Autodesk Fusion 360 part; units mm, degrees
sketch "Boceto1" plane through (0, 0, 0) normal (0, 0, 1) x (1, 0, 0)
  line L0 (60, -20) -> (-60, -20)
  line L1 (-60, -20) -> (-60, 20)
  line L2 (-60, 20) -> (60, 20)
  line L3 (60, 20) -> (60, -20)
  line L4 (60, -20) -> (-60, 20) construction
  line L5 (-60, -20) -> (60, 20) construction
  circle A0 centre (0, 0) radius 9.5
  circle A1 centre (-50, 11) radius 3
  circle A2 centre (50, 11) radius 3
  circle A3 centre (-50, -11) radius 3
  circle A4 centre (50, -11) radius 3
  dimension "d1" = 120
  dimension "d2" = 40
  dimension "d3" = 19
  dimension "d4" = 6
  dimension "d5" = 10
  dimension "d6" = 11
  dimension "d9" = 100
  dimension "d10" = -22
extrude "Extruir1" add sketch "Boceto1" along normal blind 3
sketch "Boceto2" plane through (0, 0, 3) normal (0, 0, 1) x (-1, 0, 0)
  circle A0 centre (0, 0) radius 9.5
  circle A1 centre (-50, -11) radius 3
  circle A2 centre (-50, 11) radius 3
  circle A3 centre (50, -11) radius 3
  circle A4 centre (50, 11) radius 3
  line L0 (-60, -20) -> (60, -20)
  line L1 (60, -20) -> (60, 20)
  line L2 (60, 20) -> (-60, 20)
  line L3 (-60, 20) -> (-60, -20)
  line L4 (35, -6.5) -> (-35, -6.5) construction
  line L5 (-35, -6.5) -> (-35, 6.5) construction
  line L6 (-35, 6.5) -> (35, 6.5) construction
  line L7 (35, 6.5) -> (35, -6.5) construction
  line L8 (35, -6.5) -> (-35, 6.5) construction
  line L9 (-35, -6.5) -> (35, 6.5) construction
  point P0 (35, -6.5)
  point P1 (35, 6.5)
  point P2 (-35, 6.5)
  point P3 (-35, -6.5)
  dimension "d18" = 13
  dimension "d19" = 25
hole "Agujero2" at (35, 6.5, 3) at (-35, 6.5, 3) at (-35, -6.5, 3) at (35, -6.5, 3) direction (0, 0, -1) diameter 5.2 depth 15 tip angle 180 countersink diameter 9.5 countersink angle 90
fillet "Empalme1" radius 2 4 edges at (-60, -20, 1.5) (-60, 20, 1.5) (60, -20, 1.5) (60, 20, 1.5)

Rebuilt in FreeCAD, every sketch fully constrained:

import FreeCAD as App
import Part
import Sketcher

V = App.Vector
Q = App.Units.Quantity


def edges_at(feature, points):
    """Names of the edges that pass closest to the given points."""
    edges = feature.Shape.Edges
    near = lambda p: min(range(len(edges)), key=lambda i: edges[i].distToShape(Part.Vertex(*p))[0])
    return sorted({f"Edge{near(p) + 1}" for p in points})


def add_polygon(sketch, points):
    """Adds a closed chain of lines whose ends are joined by coincident constraints."""
    first, n = sketch.GeometryCount, len(points)
    for a, b in zip(points, points[1:] + points[:1]):
        sketch.addGeometry(Part.LineSegment(App.Vector(*a, 0), App.Vector(*b, 0)), False)
    for i in range(n):
        sketch.addConstraint(Sketcher.Constraint("Coincident", first + i, 2, first + (i + 1) % n, 1))

doc = App.newDocument("Part")
body = doc.addObject("PartDesign::Body", "Body")

# Sketch on XY plane
sketch1 = body.newObject("Sketcher::SketchObject", "Sketch")
sketch1.AttachmentSupport = (doc.getObject("XY_Plane"), [""])
sketch1.MapMode = "FlatFace"
add_polygon(sketch1, [(-60, -20), (60, -20), (60, 20), (-60, 20)])  # lines 0-3
sketch1.addGeometry(Part.Circle(V(-50, -11, 0), V(0, 0, 1), 3), False)  # 4
sketch1.addGeometry(Part.Circle(V(50, -11, 0), V(0, 0, 1), 3), False)  # 5
sketch1.addGeometry(Part.Circle(V(-50, 11, 0), V(0, 0, 1), 3), False)  # 6
sketch1.addGeometry(Part.Circle(V(0, 0, 0), V(0, 0, 1), 9.5), False)  # 7
sketch1.addGeometry(Part.Circle(V(50, 11, 0), V(0, 0, 1), 3), False)  # 8
sketch1.addConstraint(Sketcher.Constraint("Horizontal", 0))
sketch1.addConstraint(Sketcher.Constraint("Vertical", 1))
sketch1.addConstraint(Sketcher.Constraint("Horizontal", 2))
sketch1.addConstraint(Sketcher.Constraint("Vertical", 3))
sketch1.addConstraint(Sketcher.Constraint("Coincident", 7, 3, -1, 1))
sketch1.addConstraint(Sketcher.Constraint("Equal", 4, 5))
sketch1.addConstraint(Sketcher.Constraint("Equal", 5, 6))
sketch1.addConstraint(Sketcher.Constraint("Equal", 6, 8))
sketch1.addConstraint(Sketcher.Constraint("Symmetric", 5, 3, 6, 3, -1, 1))
sketch1.addConstraint(Sketcher.Constraint("Symmetric", 4, 3, 8, 3, -1, 1))
sketch1.addConstraint(Sketcher.Constraint("Symmetric", 0, 2, 2, 2, -1, 1))
sketch1.addConstraint(Sketcher.Constraint("Symmetric", 4, 3, 5, 3, -2))
sketch1.addConstraint(Sketcher.Constraint("Diameter", 4, Q("6 mm")))
sketch1.addConstraint(Sketcher.Constraint("Diameter", 7, Q("19 mm")))
sketch1.addConstraint(Sketcher.Constraint("DistanceX", 0, 1, 0, 2, Q("120 mm")))
sketch1.addConstraint(Sketcher.Constraint("DistanceY", 1, 1, 1, 2, Q("40 mm")))
sketch1.addConstraint(Sketcher.Constraint("DistanceY", 4, 3, -1, 1, Q("11 mm")))
sketch1.addConstraint(Sketcher.Constraint("DistanceX", 4, 3, 5, 3, Q("100 mm")))
pad1 = body.newObject("PartDesign::Pad", "Pad")
pad1.Profile = sketch1
pad1.Length = 3

# Sketch on XY plane
sketch2 = body.newObject("Sketcher::SketchObject", "Sketch001")
sketch2.AttachmentSupport = (doc.getObject("XY_Plane"), [""])
sketch2.MapMode = "FlatFace"
sketch2.AttachmentOffset = App.Placement(V(0, 0, 3), App.Rotation())
sketch2.addGeometry(Part.Circle(V(35, 6.5, 0), V(0, 0, 1), 2.6), False)
sketch2.addGeometry(Part.Circle(V(-35, 6.5, 0), V(0, 0, 1), 2.6), False)
sketch2.addGeometry(Part.Circle(V(-35, -6.5, 0), V(0, 0, 1), 2.6), False)
sketch2.addGeometry(Part.Circle(V(35, -6.5, 0), V(0, 0, 1), 2.6), False)
sketch2.addConstraint(Sketcher.Constraint("Equal", 0, 1))
sketch2.addConstraint(Sketcher.Constraint("Equal", 1, 2))
sketch2.addConstraint(Sketcher.Constraint("Equal", 2, 3))
sketch2.addConstraint(Sketcher.Constraint("Symmetric", 0, 3, 2, 3, -1, 1))
sketch2.addConstraint(Sketcher.Constraint("Symmetric", 1, 3, 3, 3, -1, 1))
sketch2.addConstraint(Sketcher.Constraint("Symmetric", 0, 3, 1, 3, -2))
sketch2.addConstraint(Sketcher.Constraint("Diameter", 0, Q("5.2 mm")))
sketch2.addConstraint(Sketcher.Constraint("DistanceX", -1, 1, 0, 3, Q("35 mm")))
sketch2.addConstraint(Sketcher.Constraint("DistanceY", 2, 3, 1, 3, Q("13 mm")))
doc.recompute()
hole = body.newObject("PartDesign::Hole", "Hole")
hole.Profile = sketch2
hole.ThreadType = "None"
hole.Diameter = 5.2
hole.DepthType = "Dimension"
hole.Depth = 15
hole.DrillPoint = "Flat"
hole.HoleCutType = "Countersink"
hole.HoleCutDiameter = 9.5
hole.HoleCutCountersinkAngle = 90
doc.recompute()

fillet = body.newObject("PartDesign::Fillet", "Fillet")
fillet.Base = (hole, edges_at(hole, [
    (-60, -20, 1.5),
    (-60, 20, 1.5),
    (60, -20, 1.5),
    (60, 20, 1.5),
]))
fillet.Radius = 2

doc.recompute()
